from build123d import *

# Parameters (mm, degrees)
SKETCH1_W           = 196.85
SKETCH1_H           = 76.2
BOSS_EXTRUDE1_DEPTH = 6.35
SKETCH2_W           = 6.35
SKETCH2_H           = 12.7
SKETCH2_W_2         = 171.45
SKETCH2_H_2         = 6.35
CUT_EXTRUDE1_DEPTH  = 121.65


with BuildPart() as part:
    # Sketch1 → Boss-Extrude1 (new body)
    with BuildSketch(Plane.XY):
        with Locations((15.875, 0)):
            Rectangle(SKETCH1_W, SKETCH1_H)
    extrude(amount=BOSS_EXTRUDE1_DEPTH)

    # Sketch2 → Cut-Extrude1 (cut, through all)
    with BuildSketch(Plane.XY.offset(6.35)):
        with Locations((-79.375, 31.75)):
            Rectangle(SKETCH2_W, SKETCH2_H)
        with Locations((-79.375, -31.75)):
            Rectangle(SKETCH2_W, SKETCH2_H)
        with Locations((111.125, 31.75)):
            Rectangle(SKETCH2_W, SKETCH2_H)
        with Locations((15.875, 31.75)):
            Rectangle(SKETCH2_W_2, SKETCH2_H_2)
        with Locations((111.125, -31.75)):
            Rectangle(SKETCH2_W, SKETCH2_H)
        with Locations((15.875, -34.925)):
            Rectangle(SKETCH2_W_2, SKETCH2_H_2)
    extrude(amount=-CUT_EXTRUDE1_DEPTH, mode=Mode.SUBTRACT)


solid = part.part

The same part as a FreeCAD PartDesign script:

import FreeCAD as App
import Part
import Sketcher

V = App.Vector
Q = App.Units.Quantity


def add_polygon(sketch, points):
    """Adds a closed chain of lines whose ends are joined by coincident constraints."""
    first, n = sketch.GeometryCount, len(points)
    for a, b in zip(points, points[1:] + points[:1]):
        sketch.addGeometry(Part.LineSegment(App.Vector(*a, 0), App.Vector(*b, 0)), False)
    for i in range(n):
        sketch.addConstraint(Sketcher.Constraint("Coincident", first + i, 2, first + (i + 1) % n, 1))

doc = App.newDocument("Part")
body = doc.addObject("PartDesign::Body", "Body")

# Sketch on XY plane
sketch1 = doc.addObject("Sketcher::SketchObject", "Sketch")
body.addObject(sketch1)
sketch1.AttachmentSupport = (doc.XY_Plane, [""])
sketch1.MapMode = "FlatFace"
add_polygon(sketch1, [(-83, 38), (-83, -38), (114, -38), (114, 38)])  # lines 0-3
sketch1.addConstraint([
    Sketcher.Constraint("Vertical", 0),
    Sketcher.Constraint("Horizontal", 1),
    Sketcher.Constraint("Vertical", 2),
    Sketcher.Constraint("Horizontal", 3),
    Sketcher.Constraint("DistanceY", 0, 2, 0, 1, Q("3 in")),
    Sketcher.Constraint("DistanceX", 1, 1, 1, 2, Q("7.75 in")),
    Sketcher.Constraint("DistanceY", 0, 2, -1, 1, Q("1.5 in")),
    Sketcher.Constraint("DistanceX", -1, 1, 1, 2, Q("4.5 in")),
])
pad1 = doc.addObject("PartDesign::Pad", "Pad")
body.addObject(pad1)
pad1.Profile = sketch1
pad1.Length = Q("0.25 in")

# Sketch on XY plane
sketch2 = doc.addObject("Sketcher::SketchObject", "Sketch001")
body.addObject(sketch2)
sketch2.AttachmentSupport = (doc.XY_Plane, [""])
sketch2.MapMode = "FlatFace"
sketch2.AttachmentOffset = App.Placement(V(0, 0, 0.25 * 25.4), App.Rotation())
add_polygon(sketch2, [(-83, 38), (-83, 25), (-76, 25), (-76, 38)])  # lines 0-3
add_polygon(sketch2, [(-83, -25), (-83, -38), (-76, -38), (-76, -25)])  # lines 4-7
add_polygon(sketch2, [(108, 38), (108, 25), (114, 25), (114, 38)])  # lines 8-11
add_polygon(sketch2, [(-70, 35), (-70, 29), (102, 29), (102, 35)])  # lines 12-15
add_polygon(sketch2, [(108, -25), (108, -38), (114, -38), (114, -25)])  # lines 16-19
add_polygon(sketch2, [(-70, -32), (-70, -38), (102, -38), (102, -32)])  # lines 20-23
sketch2.addConstraint([
    Sketcher.Constraint("Vertical", 0),
    Sketcher.Constraint("Horizontal", 1),
    Sketcher.Constraint("Vertical", 2),
    Sketcher.Constraint("Horizontal", 3),
    Sketcher.Constraint("Vertical", 4),
    Sketcher.Constraint("Horizontal", 5),
    Sketcher.Constraint("Vertical", 6),
    Sketcher.Constraint("Horizontal", 7),
    Sketcher.Constraint("Vertical", 8),
    Sketcher.Constraint("Horizontal", 9),
    Sketcher.Constraint("Vertical", 10),
    Sketcher.Constraint("Horizontal", 11),
    Sketcher.Constraint("Vertical", 12),
    Sketcher.Constraint("Horizontal", 13),
    Sketcher.Constraint("Vertical", 14),
    Sketcher.Constraint("Horizontal", 15),
    Sketcher.Constraint("Vertical", 16),
    Sketcher.Constraint("Horizontal", 17),
    Sketcher.Constraint("Vertical", 18),
    Sketcher.Constraint("Horizontal", 19),
    Sketcher.Constraint("Vertical", 20),
    Sketcher.Constraint("Horizontal", 21),
    Sketcher.Constraint("Vertical", 22),
    Sketcher.Constraint("Horizontal", 23),
    Sketcher.Constraint("Symmetric", 3, 2, 4, 2, -1),
    Sketcher.Constraint("Symmetric", 1, 2, 6, 2, -1),
    Sketcher.Constraint("Symmetric", 11, 2, 16, 2, -1),
    Sketcher.Constraint("Symmetric", 9, 2, 18, 2, -1),
    Sketcher.Constraint("Horizontal", 1, 2, 8, 2),
    Sketcher.Constraint("Horizontal", 3, 2, 10, 2),
    Sketcher.Constraint("Horizontal", 17, 2, 20, 2),
    Sketcher.Constraint("Vertical", 15, 2, 20, 2),
    Sketcher.Constraint("Vertical", 14, 2, 21, 2),
    Sketcher.Constraint("Equal", 7, 9),
    Sketcher.Constraint("Equal", 19, 12),
    Sketcher.Constraint("Equal", 14, 20),
    Sketcher.Constraint("DistanceY", 0, 2, 0, 1, Q("0.5 in")),
    Sketcher.Constraint("DistanceY", -1, 1, 0, 2, Q("1 in")),
    Sketcher.Constraint("DistanceX", 1, 2, -1, 1, Q("3 in")),
    Sketcher.Constraint("DistanceX", -1, 1, 13, 2, Q("4 in")),
    Sketcher.Constraint("DistanceX", 1, 1, 1, 2, Q("0.25 in")),
    Sketcher.Constraint("DistanceX", 13, 1, 13, 2, Q("6.75 in")),
    Sketcher.Constraint("DistanceX", -1, 1, 9, 2, Q("4.5 in")),
    Sketcher.Constraint("DistanceY", -1, 1, 12, 2, Q("1.125 in")),
])
pocket1 = doc.addObject("PartDesign::Pocket", "Pocket")
body.addObject(pocket1)
pocket1.Profile = sketch2
pocket1.Type = "ThroughAll"

doc.recompute()
